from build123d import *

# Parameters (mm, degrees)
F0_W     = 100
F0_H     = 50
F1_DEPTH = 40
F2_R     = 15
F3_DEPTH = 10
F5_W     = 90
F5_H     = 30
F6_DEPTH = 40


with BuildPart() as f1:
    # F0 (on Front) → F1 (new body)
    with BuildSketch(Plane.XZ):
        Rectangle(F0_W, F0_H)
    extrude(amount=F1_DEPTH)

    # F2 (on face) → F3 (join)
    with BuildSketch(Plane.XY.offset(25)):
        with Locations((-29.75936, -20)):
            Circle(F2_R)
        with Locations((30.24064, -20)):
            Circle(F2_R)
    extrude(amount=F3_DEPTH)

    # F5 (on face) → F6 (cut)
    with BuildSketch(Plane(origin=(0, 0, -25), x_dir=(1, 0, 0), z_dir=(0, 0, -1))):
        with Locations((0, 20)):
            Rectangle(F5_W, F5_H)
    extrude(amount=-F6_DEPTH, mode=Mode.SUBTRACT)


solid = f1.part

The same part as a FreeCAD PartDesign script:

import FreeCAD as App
import Part
import Sketcher

V = App.Vector

doc = App.newDocument("Part")
body = doc.addObject("PartDesign::Body", "Body")

# Sketch on XZ plane
sketch1 = doc.addObject("Sketcher::SketchObject", "Sketch")
body.addObject(sketch1)
sketch1.AttachmentSupport = (doc.XZ_Plane, [""])
sketch1.MapMode = "FlatFace"
sketch1.addGeometry(Part.LineSegment(V(-50, 25, 0), V(-50, -25, 0)), False)
sketch1.addGeometry(Part.LineSegment(V(-50, -25, 0), V(50, -25, 0)), False)
sketch1.addGeometry(Part.LineSegment(V(50, -25, 0), V(50, 25, 0)), False)
sketch1.addGeometry(Part.LineSegment(V(50, 25, 0), V(-50, 25, 0)), False)
sketch1.addConstraint(Sketcher.Constraint("Coincident", 0, 2, 1, 1))
sketch1.addConstraint(Sketcher.Constraint("Coincident", 1, 2, 2, 1))
sketch1.addConstraint(Sketcher.Constraint("Coincident", 2, 2, 3, 1))
sketch1.addConstraint(Sketcher.Constraint("Coincident", 3, 2, 0, 1))
sketch1.addConstraint(Sketcher.Constraint("Vertical", 0))
sketch1.addConstraint(Sketcher.Constraint("Horizontal", 1))
sketch1.addConstraint(Sketcher.Constraint("Vertical", 2))
sketch1.addConstraint(Sketcher.Constraint("Horizontal", 3))
sketch1.addConstraint(Sketcher.Constraint("Symmetric", 0, 2, 2, 2, -1, 1))
sketch1.addConstraint(Sketcher.Constraint("DistanceX", 1, 1, 1, 2, 100.0))
sketch1.addConstraint(Sketcher.Constraint("DistanceY", 0, 2, 0, 1, 50.0))
pad1 = doc.addObject("PartDesign::Pad", "Pad")
body.addObject(pad1)
pad1.Profile = sketch1
pad1.Length = 40

# Sketch on XY plane
sketch2 = doc.addObject("Sketcher::SketchObject", "Sketch001")
body.addObject(sketch2)
sketch2.AttachmentSupport = (doc.XY_Plane, [""])
sketch2.MapMode = "FlatFace"
sketch2.AttachmentOffset = App.Placement(V(0, 0, 25), App.Rotation())
sketch2.addGeometry(Part.Circle(V(-30, -20, 0), V(0, 0, 1), 15), False)
sketch2.addGeometry(Part.Circle(V(30, -20, 0), V(0, 0, 1), 15), False)
sketch2.addConstraint(Sketcher.Constraint("Equal", 0, 1))
sketch2.addConstraint(Sketcher.Constraint("Horizontal", 0, 3, 1, 3))
sketch2.addConstraint(Sketcher.Constraint("Diameter", 0, 30.0))
sketch2.addConstraint(Sketcher.Constraint("DistanceY", 0, 3, -1, 1, 20.0))
sketch2.addConstraint(Sketcher.Constraint("DistanceX", 0, 3, 1, 3, 60.0))
sketch2.addConstraint(Sketcher.Constraint("DistanceX", 0, 3, -1, 1, 29.75936))
pad2 = doc.addObject("PartDesign::Pad", "Pad001")
body.addObject(pad2)
pad2.Profile = sketch2
pad2.Length = 10

# Sketch on XY plane
sketch3 = doc.addObject("Sketcher::SketchObject", "Sketch002")
body.addObject(sketch3)
sketch3.AttachmentSupport = (doc.XY_Plane, [""])
sketch3.MapMode = "FlatFace"
sketch3.AttachmentOffset = App.Placement(V(0, 0, -25), App.Rotation())
sketch3.addGeometry(Part.LineSegment(V(-45, -35, 0), V(-45, -5, 0)), False)
sketch3.addGeometry(Part.LineSegment(V(-45, -5, 0), V(45, -5, 0)), False)
sketch3.addGeometry(Part.LineSegment(V(45, -5, 0), V(45, -35, 0)), False)
sketch3.addGeometry(Part.LineSegment(V(45, -35, 0), V(-45, -35, 0)), False)
sketch3.addConstraint(Sketcher.Constraint("Coincident", 0, 2, 1, 1))
sketch3.addConstraint(Sketcher.Constraint("Coincident", 1, 2, 2, 1))
sketch3.addConstraint(Sketcher.Constraint("Coincident", 2, 2, 3, 1))
sketch3.addConstraint(Sketcher.Constraint("Coincident", 3, 2, 0, 1))
sketch3.addConstraint(Sketcher.Constraint("Vertical", 0))
sketch3.addConstraint(Sketcher.Constraint("Horizontal", 1))
sketch3.addConstraint(Sketcher.Constraint("Vertical", 2))
sketch3.addConstraint(Sketcher.Constraint("Horizontal", 3))
sketch3.addConstraint(Sketcher.Constraint("DistanceX", 1, 1, 1, 2, 90.0))
sketch3.addConstraint(Sketcher.Constraint("DistanceY", 0, 1, 0, 2, 30.0))
sketch3.addConstraint(Sketcher.Constraint("DistanceX", 0, 2, -1, 1, 45.0))
sketch3.addConstraint(Sketcher.Constraint("DistanceY", 0, 2, -1, 1, 5.0))
pocket1 = doc.addObject("PartDesign::Pocket", "Pocket")
body.addObject(pocket1)
pocket1.Profile = sketch3
pocket1.Length = 40
pocket1.Reversed = True

doc.recompute()
